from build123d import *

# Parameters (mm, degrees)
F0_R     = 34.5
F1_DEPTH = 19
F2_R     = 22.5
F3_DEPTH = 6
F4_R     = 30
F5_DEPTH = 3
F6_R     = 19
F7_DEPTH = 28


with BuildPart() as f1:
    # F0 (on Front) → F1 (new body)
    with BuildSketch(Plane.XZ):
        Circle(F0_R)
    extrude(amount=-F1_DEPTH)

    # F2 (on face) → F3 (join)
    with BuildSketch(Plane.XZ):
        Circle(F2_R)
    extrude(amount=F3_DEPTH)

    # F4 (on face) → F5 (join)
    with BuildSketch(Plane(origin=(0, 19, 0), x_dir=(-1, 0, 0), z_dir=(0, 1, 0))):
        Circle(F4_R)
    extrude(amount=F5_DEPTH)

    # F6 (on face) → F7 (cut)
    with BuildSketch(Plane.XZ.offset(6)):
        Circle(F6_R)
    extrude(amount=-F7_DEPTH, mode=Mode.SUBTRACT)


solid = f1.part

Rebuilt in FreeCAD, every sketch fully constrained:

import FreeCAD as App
import Part
import Sketcher
Q = App.Units.Quantity

doc = App.newDocument("Part")
body = doc.addObject("PartDesign::Body", "Body")

# Sketch on XZ plane
sketch1 = body.newObject("Sketcher::SketchObject", "Sketch")
sketch1.AttachmentSupport = (doc.getObject("XZ_Plane"), [""])
sketch1.MapMode = "FlatFace"
sketch1.addGeometry(Part.Circle(App.Vector(0, 0, 0), App.Vector(0, 0, 1), 34), False)
sketch1.addConstraint([
    Sketcher.Constraint("Coincident", 0, 3, -1, 1),
    Sketcher.Constraint("Diameter", 0, Q("69 mm")),
])
pad1 = body.newObject("PartDesign::Pad", "Pad")
pad1.Profile = sketch1
pad1.Length = 19
pad1.Reversed = True

# Sketch on XZ plane
sketch2 = body.newObject("Sketcher::SketchObject", "Sketch001")
sketch2.AttachmentSupport = (doc.getObject("XZ_Plane"), [""])
sketch2.MapMode = "FlatFace"
sketch2.addGeometry(Part.Circle(App.Vector(0, 0, 0), App.Vector(0, 0, 1), 22), False)
sketch2.addConstraint([
    Sketcher.Constraint("Coincident", 0, 3, -1, 1),
    Sketcher.Constraint("Diameter", 0, Q("45 mm")),
])
pad2 = body.newObject("PartDesign::Pad", "Pad001")
pad2.Profile = sketch2
pad2.Length = 6

# Sketch on XZ plane
sketch3 = body.newObject("Sketcher::SketchObject", "Sketch002")
sketch3.AttachmentSupport = (doc.getObject("XZ_Plane"), [""])
sketch3.MapMode = "FlatFace"
sketch3.AttachmentOffset = App.Placement(App.Vector(0, 0, -19), App.Rotation())
sketch3.addGeometry(Part.Circle(App.Vector(0, 0, 0), App.Vector(0, 0, 1), 30), False)
sketch3.addConstraint([
    Sketcher.Constraint("Coincident", 0, 3, -1, 1),
    Sketcher.Constraint("Diameter", 0, Q("60 mm")),
])
pad3 = body.newObject("PartDesign::Pad", "Pad002")
pad3.Profile = sketch3
pad3.Length = 3
pad3.Reversed = True

# Sketch on XZ plane
sketch4 = body.newObject("Sketcher::SketchObject", "Sketch003")
sketch4.AttachmentSupport = (doc.getObject("XZ_Plane"), [""])
sketch4.MapMode = "FlatFace"
sketch4.AttachmentOffset = App.Placement(App.Vector(0, 0, 6), App.Rotation())
sketch4.addGeometry(Part.Circle(App.Vector(0, 0, 0), App.Vector(0, 0, 1), 19), False)
sketch4.addConstraint([
    Sketcher.Constraint("Coincident", 0, 3, -1, 1),
    Sketcher.Constraint("Diameter", 0, Q("38 mm")),
])
pocket1 = body.newObject("PartDesign::Pocket", "Pocket")
pocket1.Profile = sketch4
pocket1.Length = 28

doc.recompute()
